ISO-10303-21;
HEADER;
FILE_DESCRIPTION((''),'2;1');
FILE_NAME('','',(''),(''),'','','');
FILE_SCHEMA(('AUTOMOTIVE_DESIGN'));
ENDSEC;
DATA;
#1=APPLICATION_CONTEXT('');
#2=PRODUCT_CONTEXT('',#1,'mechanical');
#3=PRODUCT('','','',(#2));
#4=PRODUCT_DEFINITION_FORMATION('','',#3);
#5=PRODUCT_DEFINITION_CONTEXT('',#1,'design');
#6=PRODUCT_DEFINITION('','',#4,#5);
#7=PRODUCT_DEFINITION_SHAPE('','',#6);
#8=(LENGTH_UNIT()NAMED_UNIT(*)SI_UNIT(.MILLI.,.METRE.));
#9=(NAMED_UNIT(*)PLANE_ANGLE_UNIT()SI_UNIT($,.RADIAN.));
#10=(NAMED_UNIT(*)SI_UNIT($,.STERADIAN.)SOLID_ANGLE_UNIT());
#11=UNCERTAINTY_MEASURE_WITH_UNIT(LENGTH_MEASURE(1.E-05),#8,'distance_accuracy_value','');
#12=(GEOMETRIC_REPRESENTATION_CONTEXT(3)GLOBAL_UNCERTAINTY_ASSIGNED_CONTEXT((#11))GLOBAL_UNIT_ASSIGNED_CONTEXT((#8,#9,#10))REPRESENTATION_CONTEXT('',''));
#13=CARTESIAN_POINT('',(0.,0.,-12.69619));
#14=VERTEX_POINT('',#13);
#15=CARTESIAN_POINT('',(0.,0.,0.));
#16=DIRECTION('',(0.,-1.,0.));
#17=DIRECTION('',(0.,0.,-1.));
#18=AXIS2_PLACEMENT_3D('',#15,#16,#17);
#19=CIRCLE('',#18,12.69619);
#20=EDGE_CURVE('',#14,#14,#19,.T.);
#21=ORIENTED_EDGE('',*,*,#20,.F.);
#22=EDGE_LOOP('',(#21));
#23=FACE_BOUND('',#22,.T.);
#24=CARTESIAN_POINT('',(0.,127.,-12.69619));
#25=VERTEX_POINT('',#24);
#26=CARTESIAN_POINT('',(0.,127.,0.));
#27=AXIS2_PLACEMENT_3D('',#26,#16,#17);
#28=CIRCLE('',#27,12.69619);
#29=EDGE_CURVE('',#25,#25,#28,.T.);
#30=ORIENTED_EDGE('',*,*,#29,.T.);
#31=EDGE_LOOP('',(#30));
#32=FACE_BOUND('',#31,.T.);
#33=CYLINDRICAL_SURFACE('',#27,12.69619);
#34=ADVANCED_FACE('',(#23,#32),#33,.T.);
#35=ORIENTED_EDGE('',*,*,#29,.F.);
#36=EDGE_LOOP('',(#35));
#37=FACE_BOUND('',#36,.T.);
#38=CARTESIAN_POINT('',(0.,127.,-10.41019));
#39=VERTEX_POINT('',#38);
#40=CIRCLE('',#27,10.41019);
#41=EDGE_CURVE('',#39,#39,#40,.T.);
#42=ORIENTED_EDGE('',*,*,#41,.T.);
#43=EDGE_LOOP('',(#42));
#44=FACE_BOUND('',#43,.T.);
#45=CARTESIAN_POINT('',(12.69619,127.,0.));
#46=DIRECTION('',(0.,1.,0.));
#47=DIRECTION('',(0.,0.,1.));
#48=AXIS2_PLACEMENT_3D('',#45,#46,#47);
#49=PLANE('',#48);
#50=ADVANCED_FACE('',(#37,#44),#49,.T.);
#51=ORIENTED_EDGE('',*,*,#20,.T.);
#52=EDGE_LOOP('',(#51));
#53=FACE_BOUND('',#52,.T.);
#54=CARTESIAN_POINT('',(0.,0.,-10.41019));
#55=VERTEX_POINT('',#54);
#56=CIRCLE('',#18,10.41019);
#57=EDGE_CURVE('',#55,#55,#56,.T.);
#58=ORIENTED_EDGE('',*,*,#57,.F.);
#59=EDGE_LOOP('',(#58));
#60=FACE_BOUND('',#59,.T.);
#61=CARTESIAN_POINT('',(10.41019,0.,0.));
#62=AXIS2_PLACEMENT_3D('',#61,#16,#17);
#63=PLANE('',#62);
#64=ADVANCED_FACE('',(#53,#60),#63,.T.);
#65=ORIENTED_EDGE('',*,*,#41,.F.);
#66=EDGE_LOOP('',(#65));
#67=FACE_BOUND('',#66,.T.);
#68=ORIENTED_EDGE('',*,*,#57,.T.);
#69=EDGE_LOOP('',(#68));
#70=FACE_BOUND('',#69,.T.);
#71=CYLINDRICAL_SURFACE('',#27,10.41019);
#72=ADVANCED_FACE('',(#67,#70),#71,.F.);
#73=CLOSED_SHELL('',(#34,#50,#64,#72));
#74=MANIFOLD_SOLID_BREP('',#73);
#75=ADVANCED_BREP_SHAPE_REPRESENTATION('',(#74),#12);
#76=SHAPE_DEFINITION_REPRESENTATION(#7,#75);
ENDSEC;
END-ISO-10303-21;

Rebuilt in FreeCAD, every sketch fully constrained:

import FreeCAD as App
import Part
import Sketcher
Q = App.Units.Quantity


def add_polygon(sketch, points):
    """Adds a closed chain of lines whose ends are joined by coincident constraints."""
    first, n = sketch.GeometryCount, len(points)
    for a, b in zip(points, points[1:] + points[:1]):
        sketch.addGeometry(Part.LineSegment(App.Vector(*a, 0), App.Vector(*b, 0)), False)
    for i in range(n):
        sketch.addConstraint(Sketcher.Constraint("Coincident", first + i, 2, first + (i + 1) % n, 1))

doc = App.newDocument("Part")
body = doc.addObject("PartDesign::Body", "Body")

sketch1 = body.newObject("Sketcher::SketchObject", "Sketch")
sketch1.AttachmentSupport = (doc.getObject("XY_Plane"), [""])
sketch1.MapMode = "FlatFace"
add_polygon(sketch1, [(10.4, 127), (10.4, 0), (12.7, 0), (12.7, 127)])
sketch1.addConstraint([
    Sketcher.Constraint("Vertical", 0),
    Sketcher.Constraint("Horizontal", 1),
    Sketcher.Constraint("Vertical", 2),
    Sketcher.Constraint("Horizontal", 3),
    Sketcher.Constraint("PointOnObject", 0, 2, -1),
    Sketcher.Constraint("DistanceY", 0, 2, 0, 1, Q("5 in")),
    Sketcher.Constraint("DistanceX", 1, 1, 1, 2, Q("0.09 in")),
    Sketcher.Constraint("DistanceX", -1, 1, 0, 2, 10.41019),
])
revolution = body.newObject("PartDesign::Revolution", "Revolution")
revolution.Profile = sketch1
revolution.ReferenceAxis = (sketch1, ["V_Axis"])
revolution.Angle = 360

doc.recompute()
